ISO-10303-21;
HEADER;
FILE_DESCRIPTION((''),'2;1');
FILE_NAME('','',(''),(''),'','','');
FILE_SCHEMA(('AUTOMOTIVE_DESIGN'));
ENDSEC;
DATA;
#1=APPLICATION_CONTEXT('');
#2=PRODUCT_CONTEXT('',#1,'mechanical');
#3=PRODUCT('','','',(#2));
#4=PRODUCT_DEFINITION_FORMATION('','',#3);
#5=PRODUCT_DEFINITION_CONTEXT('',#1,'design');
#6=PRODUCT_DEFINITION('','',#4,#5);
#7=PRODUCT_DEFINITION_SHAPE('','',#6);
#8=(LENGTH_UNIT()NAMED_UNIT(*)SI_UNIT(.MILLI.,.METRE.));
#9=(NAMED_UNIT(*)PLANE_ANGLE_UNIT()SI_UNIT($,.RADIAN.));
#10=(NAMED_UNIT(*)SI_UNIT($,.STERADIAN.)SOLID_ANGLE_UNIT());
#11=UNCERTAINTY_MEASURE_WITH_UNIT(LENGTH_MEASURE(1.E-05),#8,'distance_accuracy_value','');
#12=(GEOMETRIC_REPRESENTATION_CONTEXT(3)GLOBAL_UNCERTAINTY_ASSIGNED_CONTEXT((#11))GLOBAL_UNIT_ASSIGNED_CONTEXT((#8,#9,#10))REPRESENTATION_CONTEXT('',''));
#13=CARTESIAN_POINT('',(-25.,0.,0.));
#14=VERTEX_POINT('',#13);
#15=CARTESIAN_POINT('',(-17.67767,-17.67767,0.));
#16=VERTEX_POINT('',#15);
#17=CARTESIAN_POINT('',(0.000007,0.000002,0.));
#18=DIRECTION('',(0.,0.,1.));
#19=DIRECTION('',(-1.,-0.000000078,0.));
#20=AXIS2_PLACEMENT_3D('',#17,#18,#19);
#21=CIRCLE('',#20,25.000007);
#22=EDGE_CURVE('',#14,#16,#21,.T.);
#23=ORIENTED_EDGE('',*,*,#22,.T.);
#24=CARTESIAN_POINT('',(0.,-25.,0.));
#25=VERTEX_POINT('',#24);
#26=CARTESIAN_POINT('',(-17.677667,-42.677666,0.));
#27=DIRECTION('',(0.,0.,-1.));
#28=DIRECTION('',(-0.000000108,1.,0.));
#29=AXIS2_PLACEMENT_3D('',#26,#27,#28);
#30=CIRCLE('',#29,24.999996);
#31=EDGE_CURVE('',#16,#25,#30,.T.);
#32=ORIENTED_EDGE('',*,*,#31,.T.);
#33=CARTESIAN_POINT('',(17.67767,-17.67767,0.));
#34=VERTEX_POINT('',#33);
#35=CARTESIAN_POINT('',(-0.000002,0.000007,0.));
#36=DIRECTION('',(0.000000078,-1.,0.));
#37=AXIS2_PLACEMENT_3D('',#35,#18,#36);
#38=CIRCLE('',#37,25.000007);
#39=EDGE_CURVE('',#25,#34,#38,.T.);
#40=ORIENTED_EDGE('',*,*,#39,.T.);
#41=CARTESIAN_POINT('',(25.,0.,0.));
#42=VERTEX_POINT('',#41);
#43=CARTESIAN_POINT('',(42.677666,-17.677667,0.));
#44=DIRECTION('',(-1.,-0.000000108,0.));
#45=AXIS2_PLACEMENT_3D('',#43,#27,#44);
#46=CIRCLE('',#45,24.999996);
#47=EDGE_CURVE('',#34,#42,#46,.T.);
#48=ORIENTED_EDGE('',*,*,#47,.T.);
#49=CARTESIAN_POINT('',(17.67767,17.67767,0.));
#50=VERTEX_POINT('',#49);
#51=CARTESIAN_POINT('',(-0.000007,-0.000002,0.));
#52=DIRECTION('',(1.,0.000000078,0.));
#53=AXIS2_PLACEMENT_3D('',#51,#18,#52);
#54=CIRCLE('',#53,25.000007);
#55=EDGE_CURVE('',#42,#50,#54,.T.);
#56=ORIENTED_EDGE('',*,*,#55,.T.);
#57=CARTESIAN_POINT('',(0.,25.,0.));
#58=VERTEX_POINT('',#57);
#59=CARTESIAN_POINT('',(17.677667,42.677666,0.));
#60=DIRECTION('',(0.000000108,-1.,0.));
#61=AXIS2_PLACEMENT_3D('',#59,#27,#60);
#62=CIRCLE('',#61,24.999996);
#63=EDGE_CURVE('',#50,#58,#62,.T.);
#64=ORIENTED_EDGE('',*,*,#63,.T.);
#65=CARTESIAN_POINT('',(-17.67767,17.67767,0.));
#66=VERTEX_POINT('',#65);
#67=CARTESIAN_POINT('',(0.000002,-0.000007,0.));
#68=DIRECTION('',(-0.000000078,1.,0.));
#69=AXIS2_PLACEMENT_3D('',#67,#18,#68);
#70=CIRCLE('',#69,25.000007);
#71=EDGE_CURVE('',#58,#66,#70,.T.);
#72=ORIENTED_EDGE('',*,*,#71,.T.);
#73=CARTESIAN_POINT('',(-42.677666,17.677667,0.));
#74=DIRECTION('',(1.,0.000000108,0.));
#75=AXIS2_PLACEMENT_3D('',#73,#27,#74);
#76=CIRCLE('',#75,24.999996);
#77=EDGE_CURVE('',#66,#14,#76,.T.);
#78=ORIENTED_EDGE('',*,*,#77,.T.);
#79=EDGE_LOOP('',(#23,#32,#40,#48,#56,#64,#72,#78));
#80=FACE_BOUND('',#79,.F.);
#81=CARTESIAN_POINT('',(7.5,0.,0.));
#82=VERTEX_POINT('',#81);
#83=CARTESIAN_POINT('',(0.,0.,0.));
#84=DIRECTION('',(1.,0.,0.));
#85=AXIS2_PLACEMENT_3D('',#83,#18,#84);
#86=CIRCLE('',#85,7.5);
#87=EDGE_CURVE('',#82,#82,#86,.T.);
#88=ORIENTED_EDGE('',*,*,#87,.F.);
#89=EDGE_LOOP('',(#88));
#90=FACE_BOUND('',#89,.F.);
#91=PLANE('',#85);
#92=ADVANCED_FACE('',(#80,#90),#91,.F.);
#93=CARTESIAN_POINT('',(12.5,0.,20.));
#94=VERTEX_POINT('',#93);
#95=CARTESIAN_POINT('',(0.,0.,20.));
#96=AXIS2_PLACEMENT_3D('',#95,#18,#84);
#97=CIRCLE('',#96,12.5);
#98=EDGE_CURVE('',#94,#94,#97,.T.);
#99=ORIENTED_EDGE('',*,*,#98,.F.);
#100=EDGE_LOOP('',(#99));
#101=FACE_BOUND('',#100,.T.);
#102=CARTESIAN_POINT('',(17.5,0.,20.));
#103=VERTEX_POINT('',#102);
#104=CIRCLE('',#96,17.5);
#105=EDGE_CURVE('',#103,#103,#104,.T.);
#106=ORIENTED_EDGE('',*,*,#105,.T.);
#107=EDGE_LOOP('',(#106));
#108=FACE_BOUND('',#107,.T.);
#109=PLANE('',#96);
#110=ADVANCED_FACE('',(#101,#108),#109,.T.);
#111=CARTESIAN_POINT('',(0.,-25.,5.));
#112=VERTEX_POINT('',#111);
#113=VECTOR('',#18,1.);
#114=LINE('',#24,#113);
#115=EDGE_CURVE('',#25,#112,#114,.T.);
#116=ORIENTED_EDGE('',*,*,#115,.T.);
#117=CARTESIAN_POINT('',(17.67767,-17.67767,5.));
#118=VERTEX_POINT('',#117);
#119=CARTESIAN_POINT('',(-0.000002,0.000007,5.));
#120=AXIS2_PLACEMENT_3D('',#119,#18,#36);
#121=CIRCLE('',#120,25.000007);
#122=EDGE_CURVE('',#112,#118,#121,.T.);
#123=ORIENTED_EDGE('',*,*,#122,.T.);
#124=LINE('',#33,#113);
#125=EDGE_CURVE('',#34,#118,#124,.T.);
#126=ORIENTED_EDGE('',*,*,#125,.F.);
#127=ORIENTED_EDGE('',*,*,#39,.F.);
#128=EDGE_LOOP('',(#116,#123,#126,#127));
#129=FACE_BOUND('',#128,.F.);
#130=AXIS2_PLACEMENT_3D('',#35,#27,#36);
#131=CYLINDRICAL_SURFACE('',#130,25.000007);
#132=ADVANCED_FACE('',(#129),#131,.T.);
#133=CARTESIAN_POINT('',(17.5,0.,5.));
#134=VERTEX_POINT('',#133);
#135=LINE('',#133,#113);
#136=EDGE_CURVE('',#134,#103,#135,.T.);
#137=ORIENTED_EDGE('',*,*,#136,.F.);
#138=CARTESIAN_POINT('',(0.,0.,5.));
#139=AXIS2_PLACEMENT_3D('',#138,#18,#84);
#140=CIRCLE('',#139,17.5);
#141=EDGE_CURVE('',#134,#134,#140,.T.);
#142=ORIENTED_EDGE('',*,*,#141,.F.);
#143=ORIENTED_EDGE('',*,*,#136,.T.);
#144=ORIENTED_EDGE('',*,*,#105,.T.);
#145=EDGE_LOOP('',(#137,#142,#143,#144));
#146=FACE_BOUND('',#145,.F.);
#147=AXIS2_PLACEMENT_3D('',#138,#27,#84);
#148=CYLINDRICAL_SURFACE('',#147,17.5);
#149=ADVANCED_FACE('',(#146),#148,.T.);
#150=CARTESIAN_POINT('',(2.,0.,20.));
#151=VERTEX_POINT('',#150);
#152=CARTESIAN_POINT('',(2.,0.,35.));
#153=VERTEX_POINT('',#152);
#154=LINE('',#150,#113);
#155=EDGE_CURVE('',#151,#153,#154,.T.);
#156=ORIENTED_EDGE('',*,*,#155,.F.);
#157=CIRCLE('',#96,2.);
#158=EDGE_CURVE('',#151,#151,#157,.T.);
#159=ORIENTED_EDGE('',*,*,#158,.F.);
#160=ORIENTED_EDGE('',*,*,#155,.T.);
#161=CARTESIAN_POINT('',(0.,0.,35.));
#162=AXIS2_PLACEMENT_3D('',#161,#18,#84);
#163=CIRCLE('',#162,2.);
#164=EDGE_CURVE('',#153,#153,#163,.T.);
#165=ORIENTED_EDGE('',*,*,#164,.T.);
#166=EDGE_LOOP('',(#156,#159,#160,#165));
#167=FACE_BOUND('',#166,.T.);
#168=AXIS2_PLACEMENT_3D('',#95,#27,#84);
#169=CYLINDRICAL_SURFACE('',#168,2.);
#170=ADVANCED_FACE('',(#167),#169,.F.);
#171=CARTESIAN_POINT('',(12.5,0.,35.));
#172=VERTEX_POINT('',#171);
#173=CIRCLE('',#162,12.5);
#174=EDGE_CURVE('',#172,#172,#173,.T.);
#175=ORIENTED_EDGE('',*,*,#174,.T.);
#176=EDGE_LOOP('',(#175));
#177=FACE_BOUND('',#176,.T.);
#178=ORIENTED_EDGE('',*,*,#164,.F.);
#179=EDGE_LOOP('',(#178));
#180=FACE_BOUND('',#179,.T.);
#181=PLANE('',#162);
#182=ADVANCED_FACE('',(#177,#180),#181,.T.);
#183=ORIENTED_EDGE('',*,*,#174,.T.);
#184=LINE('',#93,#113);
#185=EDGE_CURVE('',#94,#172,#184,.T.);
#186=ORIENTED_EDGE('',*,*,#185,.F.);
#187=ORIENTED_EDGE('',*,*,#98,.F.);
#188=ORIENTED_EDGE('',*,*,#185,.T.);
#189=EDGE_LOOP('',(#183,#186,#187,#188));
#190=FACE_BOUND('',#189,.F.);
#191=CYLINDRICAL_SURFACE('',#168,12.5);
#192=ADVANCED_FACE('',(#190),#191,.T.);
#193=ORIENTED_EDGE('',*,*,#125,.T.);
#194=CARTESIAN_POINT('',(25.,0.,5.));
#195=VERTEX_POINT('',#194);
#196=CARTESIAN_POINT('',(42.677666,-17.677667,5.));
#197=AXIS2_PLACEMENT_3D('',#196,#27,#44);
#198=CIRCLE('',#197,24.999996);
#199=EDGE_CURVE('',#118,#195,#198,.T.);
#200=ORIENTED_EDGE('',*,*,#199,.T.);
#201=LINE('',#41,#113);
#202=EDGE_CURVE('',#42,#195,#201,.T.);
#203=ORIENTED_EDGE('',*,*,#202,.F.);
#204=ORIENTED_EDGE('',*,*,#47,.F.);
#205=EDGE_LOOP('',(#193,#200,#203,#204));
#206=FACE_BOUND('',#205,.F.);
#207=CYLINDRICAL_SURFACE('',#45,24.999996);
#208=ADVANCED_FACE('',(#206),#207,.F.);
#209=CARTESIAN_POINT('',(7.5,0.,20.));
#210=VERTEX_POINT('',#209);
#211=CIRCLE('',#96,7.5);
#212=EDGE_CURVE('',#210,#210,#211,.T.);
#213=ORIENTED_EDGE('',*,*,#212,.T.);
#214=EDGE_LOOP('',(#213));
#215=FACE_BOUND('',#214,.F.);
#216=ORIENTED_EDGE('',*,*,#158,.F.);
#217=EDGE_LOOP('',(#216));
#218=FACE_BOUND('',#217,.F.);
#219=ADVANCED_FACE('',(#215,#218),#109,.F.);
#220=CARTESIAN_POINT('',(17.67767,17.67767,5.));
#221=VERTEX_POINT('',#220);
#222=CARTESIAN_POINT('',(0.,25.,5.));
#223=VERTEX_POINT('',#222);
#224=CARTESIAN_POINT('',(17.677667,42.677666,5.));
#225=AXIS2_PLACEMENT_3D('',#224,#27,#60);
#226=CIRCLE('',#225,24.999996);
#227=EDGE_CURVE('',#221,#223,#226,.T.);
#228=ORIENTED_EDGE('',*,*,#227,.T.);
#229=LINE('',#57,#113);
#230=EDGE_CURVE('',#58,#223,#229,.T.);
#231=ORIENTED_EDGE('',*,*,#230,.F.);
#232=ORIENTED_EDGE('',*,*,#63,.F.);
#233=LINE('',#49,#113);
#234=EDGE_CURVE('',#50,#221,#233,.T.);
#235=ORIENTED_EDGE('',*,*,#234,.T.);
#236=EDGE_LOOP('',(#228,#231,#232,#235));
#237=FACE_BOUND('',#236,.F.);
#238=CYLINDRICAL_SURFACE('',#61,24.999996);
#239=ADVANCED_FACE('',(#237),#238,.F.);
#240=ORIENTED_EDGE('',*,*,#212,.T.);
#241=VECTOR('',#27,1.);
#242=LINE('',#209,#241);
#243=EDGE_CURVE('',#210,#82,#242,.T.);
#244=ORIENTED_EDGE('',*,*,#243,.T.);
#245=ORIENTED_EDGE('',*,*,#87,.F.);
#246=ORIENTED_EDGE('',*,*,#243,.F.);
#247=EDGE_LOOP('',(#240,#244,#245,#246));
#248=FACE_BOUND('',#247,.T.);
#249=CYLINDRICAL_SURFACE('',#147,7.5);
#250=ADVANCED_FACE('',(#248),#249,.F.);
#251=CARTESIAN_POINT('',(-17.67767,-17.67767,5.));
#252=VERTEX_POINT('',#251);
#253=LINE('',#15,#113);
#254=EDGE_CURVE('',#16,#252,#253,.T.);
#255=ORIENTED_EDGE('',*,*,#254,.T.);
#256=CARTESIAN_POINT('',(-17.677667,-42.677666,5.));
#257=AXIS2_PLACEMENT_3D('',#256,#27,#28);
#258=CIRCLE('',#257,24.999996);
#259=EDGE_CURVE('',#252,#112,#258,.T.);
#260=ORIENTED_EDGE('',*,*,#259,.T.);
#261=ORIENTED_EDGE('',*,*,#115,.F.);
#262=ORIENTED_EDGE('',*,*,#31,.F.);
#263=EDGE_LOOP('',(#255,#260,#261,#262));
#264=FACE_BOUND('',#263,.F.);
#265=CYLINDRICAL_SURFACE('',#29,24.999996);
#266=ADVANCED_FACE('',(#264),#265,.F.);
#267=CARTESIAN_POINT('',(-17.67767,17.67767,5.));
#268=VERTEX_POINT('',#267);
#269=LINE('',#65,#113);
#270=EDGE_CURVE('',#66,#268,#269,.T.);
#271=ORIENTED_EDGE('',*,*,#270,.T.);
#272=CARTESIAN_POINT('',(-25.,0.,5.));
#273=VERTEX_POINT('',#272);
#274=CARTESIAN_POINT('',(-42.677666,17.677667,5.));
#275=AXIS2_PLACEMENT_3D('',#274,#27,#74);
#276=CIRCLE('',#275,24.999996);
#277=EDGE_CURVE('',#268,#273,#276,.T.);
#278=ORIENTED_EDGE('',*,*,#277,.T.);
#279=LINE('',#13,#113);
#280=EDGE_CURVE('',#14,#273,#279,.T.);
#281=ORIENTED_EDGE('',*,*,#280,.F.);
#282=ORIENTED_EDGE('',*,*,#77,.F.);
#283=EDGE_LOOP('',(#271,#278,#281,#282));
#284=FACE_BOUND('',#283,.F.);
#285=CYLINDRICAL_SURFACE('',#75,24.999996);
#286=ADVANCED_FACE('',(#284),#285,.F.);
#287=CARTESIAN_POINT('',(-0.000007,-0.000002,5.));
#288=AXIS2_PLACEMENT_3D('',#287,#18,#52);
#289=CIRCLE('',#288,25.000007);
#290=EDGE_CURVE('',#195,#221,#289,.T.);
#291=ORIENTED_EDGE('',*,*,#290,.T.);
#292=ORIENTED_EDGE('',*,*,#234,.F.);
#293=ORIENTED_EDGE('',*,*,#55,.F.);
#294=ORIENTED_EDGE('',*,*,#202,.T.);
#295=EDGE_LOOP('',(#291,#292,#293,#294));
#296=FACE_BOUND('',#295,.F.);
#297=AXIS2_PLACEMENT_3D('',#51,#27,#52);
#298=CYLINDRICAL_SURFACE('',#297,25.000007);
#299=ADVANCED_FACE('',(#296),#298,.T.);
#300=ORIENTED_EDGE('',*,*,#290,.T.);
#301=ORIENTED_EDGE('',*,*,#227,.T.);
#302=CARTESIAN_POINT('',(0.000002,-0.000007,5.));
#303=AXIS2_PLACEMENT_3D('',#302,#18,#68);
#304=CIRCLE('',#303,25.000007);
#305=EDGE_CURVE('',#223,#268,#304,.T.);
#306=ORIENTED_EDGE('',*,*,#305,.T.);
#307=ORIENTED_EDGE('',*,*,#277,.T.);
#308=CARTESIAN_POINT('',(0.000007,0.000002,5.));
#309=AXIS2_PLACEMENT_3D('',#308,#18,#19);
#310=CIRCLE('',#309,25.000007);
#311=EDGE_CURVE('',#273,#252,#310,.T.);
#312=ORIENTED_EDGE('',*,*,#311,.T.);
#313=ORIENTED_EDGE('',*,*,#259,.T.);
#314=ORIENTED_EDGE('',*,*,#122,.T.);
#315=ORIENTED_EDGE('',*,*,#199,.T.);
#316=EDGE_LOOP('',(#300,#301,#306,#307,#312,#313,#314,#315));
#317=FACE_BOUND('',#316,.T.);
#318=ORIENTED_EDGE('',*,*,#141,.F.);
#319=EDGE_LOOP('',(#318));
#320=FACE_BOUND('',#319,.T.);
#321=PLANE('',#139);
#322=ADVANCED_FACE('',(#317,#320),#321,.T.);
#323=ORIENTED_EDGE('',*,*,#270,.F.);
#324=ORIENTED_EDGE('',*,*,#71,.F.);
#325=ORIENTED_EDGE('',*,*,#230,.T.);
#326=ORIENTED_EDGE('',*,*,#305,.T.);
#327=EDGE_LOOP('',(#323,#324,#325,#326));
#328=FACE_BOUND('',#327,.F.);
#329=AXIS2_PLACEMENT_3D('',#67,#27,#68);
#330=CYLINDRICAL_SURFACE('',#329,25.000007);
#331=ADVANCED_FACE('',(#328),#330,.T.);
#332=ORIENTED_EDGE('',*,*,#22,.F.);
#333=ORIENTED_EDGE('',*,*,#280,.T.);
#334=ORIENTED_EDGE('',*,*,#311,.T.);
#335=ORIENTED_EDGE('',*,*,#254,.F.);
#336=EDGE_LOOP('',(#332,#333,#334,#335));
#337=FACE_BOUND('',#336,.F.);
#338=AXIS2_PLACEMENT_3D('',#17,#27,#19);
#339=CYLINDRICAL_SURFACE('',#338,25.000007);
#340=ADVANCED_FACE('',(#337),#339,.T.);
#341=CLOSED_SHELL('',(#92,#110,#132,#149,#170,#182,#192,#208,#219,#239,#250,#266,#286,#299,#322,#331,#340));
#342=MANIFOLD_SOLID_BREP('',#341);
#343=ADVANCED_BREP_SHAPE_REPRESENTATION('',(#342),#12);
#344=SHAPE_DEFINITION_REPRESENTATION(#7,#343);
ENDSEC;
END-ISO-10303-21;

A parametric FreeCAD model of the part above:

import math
import FreeCAD as App
import Part
import Sketcher
from FreeCAD import Vector
Q = App.Units.Quantity

doc = App.newDocument("Part")
body = doc.addObject("PartDesign::Body", "Body")

# Sketch on XY plane
sketch1 = body.newObject("Sketcher::SketchObject", "Sketch")
sketch1.AttachmentSupport = (doc.getObject("XY_Plane"), [""])
sketch1.MapMode = "FlatFace"
sketch1.addGeometry([
    Part.ArcOfCircle(Part.Circle(Vector(-43, 18, 0), Vector(0, 0, 1), 25), math.radians(-45), math.radians(0)),  # 0
    Part.ArcOfCircle(Part.Circle(Vector(0, 0, 0), Vector(0, 0, 1), 25), math.radians(-180), math.radians(-135)),  # 1
    Part.ArcOfCircle(Part.Circle(Vector(-18, -43, 0), Vector(0, 0, 1), 25), math.radians(45), math.radians(90)),  # 2
    Part.ArcOfCircle(Part.Circle(Vector(0, 0, 0), Vector(0, 0, 1), 25), math.radians(-90), math.radians(-45)),  # 3
    Part.ArcOfCircle(Part.Circle(Vector(43, -18, 0), Vector(0, 0, 1), 25), math.radians(135), math.radians(180)),  # 4
    Part.ArcOfCircle(Part.Circle(Vector(0, 0, 0), Vector(0, 0, 1), 25), math.radians(0), math.radians(45)),  # 5
    Part.ArcOfCircle(Part.Circle(Vector(18, 43, 0), Vector(0, 0, 1), 25), math.radians(-135), math.radians(-90)),  # 6
    Part.ArcOfCircle(Part.Circle(Vector(0, 0, 0), Vector(0, 0, 1), 25), math.radians(90), math.radians(135)),  # 7
    Part.Circle(Vector(0, 0, 0), Vector(0, 0, 1), 8),  # 8
], False)
sketch1.addConstraint([
    Sketcher.Constraint("Coincident", 0, 1, 1, 1),
    Sketcher.Constraint("Coincident", 1, 2, 2, 2),
    Sketcher.Constraint("Coincident", 2, 1, 3, 1),
    Sketcher.Constraint("Coincident", 3, 2, 4, 2),
    Sketcher.Constraint("Coincident", 4, 1, 5, 1),
    Sketcher.Constraint("Coincident", 5, 2, 6, 2),
    Sketcher.Constraint("Coincident", 6, 1, 7, 1),
    Sketcher.Constraint("Coincident", 7, 2, 0, 2),
    Sketcher.Constraint("Coincident", 1, 3, -1, 1),
    Sketcher.Constraint("Coincident", 3, 3, -1, 1),
    Sketcher.Constraint("Coincident", 5, 3, -1, 1),
    Sketcher.Constraint("Coincident", 7, 3, -1, 1),
    Sketcher.Constraint("Coincident", 8, 3, -1, 1),
    Sketcher.Constraint("Equal", 0, 2),
    Sketcher.Constraint("Equal", 1, 3),
    Sketcher.Constraint("Equal", 2, 4),
    Sketcher.Constraint("Equal", 3, 5),
    Sketcher.Constraint("Equal", 4, 6),
    Sketcher.Constraint("Equal", 5, 7),
    Sketcher.Constraint("Symmetric", 0, 3, 4, 3, -1, 1),
    Sketcher.Constraint("Symmetric", 2, 3, 6, 3, -1, 1),
    Sketcher.Constraint("PointOnObject", 0, 1, -1),
    Sketcher.Constraint("PointOnObject", 2, 1, -2),
    Sketcher.Constraint("Horizontal", 1, 2, 3, 2),
    Sketcher.Constraint("Diameter", 8, Q("15 mm")),
    Sketcher.Constraint("DistanceX", 0, 1, -1, 1, Q("25 mm")),
    Sketcher.Constraint("DistanceX", 0, 3, 2, 3, Q("24.999998 mm")),
    Sketcher.Constraint("DistanceX", 1, 2, -1, 1, Q("17.67767 mm")),
])
pad1 = body.newObject("PartDesign::Pad", "Pad")
pad1.Profile = sketch1
pad1.Length = 5

# Sketch on XY plane
sketch2 = body.newObject("Sketcher::SketchObject", "Sketch001")
sketch2.AttachmentSupport = (doc.getObject("XY_Plane"), [""])
sketch2.MapMode = "FlatFace"
sketch2.AttachmentOffset = App.Placement(Vector(0, 0, 5), App.Rotation())
sketch2.addGeometry([
    Part.Circle(Vector(0, 0, 0), Vector(0, 0, 1), 18),
    Part.Circle(Vector(0, 0, 0), Vector(0, 0, 1), 8),
], False)
sketch2.addConstraint([
    Sketcher.Constraint("Coincident", 0, 3, -1, 1),
    Sketcher.Constraint("Coincident", 1, 3, -1, 1),
    Sketcher.Constraint("Diameter", 0, Q("35 mm")),
    Sketcher.Constraint("Diameter", 1, Q("15 mm")),
])
pad2 = body.newObject("PartDesign::Pad", "Pad001")
pad2.Profile = sketch2
pad2.Length = 15

# Sketch on XY plane
sketch3 = body.newObject("Sketcher::SketchObject", "Sketch002")
sketch3.AttachmentSupport = (doc.getObject("XY_Plane"), [""])
sketch3.MapMode = "FlatFace"
sketch3.AttachmentOffset = App.Placement(Vector(0, 0, 20), App.Rotation())
sketch3.addGeometry([
    Part.Circle(Vector(0, 0, 0), Vector(0, 0, 1), 12.5),
    Part.Circle(Vector(0, 0, 0), Vector(0, 0, 1), 2),
], False)
sketch3.addConstraint([
    Sketcher.Constraint("Coincident", 0, 3, -1, 1),
    Sketcher.Constraint("Coincident", 1, 3, -1, 1),
    Sketcher.Constraint("Diameter", 0, Q("25 mm")),
    Sketcher.Constraint("Diameter", 1, Q("4 mm")),
])
pad3 = body.newObject("PartDesign::Pad", "Pad002")
pad3.Profile = sketch3
pad3.Length = 15

doc.recompute()
